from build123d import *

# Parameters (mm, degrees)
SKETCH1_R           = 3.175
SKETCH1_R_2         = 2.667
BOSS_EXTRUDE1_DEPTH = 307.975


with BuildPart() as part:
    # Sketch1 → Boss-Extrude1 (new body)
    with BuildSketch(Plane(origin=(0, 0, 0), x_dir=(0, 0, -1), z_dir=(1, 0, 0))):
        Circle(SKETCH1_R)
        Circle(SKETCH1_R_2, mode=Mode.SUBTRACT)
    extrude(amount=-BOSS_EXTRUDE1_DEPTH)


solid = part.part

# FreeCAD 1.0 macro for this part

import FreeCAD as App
import Part
import Sketcher
from FreeCAD import Vector
Q = App.Units.Quantity

doc = App.newDocument("Part")
body = doc.addObject("PartDesign::Body", "Body")

sketch1 = body.newObject("Sketcher::SketchObject", "Sketch")
sketch1.AttachmentSupport = (doc.getObject("YZ_Plane"), [""])
sketch1.MapMode = "FlatFace"
sketch1.addGeometry(Part.Circle(Vector(0, 0, 0), Vector(0, 0, 1), 3.175), False)
sketch1.addGeometry(Part.Circle(Vector(0, 0, 0), Vector(0, 0, 1), 2.667), False)
sketch1.addConstraint(Sketcher.Constraint("Coincident", 0, 3, -1, 1))
sketch1.addConstraint(Sketcher.Constraint("Coincident", 1, 3, -1, 1))
sketch1.addConstraint(Sketcher.Constraint("Diameter", 0, Q("0.25 in")))
sketch1.addConstraint(Sketcher.Constraint("Diameter", 1, Q("0.21 in")))
pad1 = body.newObject("PartDesign::Pad", "Pad")
pad1.Profile = sketch1
pad1.Length = Q("12.125 in")
pad1.Reversed = True

doc.recompute()
